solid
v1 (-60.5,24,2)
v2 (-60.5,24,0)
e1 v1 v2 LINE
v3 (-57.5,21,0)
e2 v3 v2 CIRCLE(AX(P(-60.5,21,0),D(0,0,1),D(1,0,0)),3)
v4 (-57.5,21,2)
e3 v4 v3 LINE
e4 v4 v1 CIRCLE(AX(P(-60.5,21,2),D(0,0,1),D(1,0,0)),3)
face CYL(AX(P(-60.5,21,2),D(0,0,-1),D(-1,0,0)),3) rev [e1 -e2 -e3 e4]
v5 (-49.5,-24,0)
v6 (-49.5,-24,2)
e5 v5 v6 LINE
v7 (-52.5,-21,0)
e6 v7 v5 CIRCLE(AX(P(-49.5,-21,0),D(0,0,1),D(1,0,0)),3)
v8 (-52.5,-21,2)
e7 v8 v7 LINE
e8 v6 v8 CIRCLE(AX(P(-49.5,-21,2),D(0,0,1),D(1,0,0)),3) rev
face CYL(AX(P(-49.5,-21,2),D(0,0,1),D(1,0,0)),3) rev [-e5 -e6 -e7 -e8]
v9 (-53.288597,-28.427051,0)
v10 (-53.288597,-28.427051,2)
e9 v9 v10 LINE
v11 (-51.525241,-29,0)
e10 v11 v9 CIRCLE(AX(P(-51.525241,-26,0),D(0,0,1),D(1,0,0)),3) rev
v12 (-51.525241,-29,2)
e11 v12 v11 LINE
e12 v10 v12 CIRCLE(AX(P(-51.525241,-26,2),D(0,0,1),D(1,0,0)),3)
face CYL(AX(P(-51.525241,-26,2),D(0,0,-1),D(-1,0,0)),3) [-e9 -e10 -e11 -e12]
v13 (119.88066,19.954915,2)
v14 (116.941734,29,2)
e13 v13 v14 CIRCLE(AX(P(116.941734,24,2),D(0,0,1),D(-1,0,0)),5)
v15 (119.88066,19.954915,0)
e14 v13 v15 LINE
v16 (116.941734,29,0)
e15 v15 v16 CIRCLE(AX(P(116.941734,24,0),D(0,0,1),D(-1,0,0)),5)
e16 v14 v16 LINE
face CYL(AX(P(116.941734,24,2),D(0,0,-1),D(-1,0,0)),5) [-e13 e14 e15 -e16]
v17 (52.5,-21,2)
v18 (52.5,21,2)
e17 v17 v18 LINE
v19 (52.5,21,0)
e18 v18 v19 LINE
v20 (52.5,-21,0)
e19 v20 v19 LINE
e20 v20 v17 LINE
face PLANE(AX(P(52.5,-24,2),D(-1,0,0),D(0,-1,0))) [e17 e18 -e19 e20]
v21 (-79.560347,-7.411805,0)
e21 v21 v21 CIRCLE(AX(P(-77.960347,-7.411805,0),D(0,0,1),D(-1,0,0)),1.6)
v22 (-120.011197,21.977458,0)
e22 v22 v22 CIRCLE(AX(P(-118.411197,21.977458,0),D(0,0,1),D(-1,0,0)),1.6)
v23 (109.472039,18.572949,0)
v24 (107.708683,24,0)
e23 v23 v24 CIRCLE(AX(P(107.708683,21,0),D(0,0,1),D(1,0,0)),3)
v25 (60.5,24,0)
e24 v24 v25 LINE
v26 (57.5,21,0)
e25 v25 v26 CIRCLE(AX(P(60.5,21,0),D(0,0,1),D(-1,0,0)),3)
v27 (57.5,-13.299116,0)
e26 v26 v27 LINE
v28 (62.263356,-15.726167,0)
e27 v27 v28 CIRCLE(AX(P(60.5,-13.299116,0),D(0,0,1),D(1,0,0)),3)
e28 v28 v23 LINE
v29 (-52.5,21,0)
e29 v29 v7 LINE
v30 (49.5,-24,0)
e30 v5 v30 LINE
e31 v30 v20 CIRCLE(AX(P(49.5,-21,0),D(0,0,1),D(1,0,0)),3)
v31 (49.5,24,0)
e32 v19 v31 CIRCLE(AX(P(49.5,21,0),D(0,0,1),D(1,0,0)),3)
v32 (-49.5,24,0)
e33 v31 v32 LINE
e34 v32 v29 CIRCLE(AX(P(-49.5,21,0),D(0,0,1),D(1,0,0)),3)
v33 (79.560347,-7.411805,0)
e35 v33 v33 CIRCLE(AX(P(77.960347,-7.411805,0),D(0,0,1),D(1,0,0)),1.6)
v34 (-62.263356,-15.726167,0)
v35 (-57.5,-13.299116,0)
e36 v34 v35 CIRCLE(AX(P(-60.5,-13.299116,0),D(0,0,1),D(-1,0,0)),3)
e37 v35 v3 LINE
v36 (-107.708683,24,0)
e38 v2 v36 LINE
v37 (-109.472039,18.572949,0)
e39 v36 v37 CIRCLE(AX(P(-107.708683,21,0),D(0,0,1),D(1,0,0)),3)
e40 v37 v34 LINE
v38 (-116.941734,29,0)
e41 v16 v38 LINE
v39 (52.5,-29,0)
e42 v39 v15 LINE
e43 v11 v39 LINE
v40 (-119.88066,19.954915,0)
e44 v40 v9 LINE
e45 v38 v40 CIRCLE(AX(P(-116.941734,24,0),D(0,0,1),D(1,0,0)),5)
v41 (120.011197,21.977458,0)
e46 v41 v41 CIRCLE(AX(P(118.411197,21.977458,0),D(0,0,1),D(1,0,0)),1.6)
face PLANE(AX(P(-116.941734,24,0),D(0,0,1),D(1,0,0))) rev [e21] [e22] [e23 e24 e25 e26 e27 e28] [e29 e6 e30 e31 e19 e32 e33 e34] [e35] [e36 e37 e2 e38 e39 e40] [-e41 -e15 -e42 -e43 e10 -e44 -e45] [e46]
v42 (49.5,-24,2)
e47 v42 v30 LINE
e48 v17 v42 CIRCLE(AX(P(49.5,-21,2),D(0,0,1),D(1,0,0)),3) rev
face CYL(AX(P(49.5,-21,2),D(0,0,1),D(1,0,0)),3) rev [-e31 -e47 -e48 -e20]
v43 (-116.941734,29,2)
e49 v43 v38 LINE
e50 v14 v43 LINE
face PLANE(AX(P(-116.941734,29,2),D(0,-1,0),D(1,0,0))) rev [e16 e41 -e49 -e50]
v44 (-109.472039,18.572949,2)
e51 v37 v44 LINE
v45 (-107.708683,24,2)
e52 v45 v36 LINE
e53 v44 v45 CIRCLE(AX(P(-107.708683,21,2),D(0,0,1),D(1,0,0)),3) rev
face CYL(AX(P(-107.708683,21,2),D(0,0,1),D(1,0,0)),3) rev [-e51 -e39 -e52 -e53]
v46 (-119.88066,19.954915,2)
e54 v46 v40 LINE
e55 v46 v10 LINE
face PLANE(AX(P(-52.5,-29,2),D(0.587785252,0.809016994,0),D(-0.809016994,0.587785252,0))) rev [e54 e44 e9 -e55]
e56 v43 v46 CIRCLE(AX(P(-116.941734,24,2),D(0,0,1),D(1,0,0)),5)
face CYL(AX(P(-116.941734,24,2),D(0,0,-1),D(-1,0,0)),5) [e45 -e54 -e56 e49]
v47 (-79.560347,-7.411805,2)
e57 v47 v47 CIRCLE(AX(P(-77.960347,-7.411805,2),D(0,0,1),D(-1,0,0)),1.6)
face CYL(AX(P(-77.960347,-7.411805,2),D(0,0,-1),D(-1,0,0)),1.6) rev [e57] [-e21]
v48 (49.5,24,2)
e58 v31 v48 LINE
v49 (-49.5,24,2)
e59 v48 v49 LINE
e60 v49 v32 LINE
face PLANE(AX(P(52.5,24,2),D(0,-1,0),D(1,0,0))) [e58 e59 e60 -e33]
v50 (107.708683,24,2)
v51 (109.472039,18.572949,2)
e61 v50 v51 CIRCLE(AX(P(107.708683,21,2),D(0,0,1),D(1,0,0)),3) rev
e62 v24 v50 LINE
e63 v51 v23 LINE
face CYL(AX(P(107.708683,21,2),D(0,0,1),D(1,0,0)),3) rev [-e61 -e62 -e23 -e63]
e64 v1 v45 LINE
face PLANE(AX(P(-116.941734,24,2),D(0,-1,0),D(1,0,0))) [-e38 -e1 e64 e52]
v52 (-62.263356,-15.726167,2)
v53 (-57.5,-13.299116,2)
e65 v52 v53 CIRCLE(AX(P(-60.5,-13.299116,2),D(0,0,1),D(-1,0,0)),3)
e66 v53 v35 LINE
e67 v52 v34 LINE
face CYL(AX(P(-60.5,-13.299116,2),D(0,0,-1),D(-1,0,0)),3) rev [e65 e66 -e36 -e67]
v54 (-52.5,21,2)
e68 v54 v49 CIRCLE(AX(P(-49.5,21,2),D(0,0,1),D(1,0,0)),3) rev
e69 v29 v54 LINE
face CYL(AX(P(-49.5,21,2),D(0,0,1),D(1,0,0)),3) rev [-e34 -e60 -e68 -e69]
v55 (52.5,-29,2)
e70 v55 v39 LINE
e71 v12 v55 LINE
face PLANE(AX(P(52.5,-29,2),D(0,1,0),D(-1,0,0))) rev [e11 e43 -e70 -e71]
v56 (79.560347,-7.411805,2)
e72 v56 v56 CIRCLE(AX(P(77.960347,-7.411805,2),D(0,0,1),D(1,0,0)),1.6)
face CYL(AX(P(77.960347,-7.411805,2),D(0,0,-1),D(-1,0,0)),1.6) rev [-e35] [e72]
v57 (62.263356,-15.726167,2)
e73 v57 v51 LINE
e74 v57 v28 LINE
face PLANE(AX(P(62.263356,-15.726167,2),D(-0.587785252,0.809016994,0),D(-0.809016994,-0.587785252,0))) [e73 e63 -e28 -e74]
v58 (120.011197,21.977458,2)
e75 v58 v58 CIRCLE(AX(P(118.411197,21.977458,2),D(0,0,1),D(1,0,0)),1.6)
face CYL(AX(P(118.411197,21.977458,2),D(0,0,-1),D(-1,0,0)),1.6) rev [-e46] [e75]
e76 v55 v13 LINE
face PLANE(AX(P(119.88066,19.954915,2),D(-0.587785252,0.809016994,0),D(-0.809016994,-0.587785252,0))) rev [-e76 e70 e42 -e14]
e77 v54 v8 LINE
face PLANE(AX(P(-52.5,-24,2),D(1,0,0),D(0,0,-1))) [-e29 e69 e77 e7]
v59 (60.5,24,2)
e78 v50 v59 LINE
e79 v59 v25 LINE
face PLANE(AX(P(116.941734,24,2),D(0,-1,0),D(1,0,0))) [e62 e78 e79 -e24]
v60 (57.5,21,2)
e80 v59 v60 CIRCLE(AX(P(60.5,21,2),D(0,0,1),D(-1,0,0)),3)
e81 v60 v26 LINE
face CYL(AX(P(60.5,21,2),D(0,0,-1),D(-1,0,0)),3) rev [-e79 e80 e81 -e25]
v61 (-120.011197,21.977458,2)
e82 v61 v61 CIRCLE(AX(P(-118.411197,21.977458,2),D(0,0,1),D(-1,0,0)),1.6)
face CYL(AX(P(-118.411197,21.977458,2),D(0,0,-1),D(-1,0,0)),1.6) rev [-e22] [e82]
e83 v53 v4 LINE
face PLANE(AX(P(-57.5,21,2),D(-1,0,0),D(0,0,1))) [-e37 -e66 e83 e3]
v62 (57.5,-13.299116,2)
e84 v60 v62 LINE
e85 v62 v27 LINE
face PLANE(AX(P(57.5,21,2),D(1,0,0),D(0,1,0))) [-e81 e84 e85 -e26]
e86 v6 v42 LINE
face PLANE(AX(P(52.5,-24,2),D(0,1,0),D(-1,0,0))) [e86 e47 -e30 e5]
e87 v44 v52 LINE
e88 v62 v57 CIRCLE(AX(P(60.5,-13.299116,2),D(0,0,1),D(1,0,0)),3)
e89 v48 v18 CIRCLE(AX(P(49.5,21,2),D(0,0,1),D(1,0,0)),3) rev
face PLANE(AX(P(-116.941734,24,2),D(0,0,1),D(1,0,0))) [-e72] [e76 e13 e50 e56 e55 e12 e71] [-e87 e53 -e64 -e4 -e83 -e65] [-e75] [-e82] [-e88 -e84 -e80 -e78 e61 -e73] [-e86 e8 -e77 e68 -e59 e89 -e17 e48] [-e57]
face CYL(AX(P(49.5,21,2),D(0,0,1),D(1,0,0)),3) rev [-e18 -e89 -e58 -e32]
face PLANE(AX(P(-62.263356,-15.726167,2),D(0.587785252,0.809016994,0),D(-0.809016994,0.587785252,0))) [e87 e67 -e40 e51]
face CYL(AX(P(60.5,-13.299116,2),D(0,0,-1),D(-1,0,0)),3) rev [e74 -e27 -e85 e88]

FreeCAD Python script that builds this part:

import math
import FreeCAD as App
import Part
import Sketcher
Q = App.Units.Quantity


def edges_at(feature, points):
    """Names of the edges that pass closest to the given points."""
    edges = feature.Shape.Edges
    near = lambda p: min(range(len(edges)), key=lambda i: edges[i].distToShape(Part.Vertex(*p))[0])
    return sorted({f"Edge{near(p) + 1}" for p in points})


def add_polygon(sketch, points):
    """Adds a closed chain of lines whose ends are joined by coincident constraints."""
    first, n = sketch.GeometryCount, len(points)
    for a, b in zip(points, points[1:] + points[:1]):
        sketch.addGeometry(Part.LineSegment(App.Vector(*a, 0), App.Vector(*b, 0)), False)
    for i in range(n):
        sketch.addConstraint(Sketcher.Constraint("Coincident", first + i, 2, first + (i + 1) % n, 1))

doc = App.newDocument("Part")
params = doc.addObject("Spreadsheet::Sheet", "Params")
for row, (alias, value) in enumerate([
    ("sketch1_radius", "5 mm"),
    ("sketch1_radius2", "3 mm"),
    ("sketch1_diameter", "3.2 mm"),
    ("sketch1_width", "105 mm"),
    ("sketch1_height", "48 mm"),
    ("pad1_length", "2 mm"),
    ("fillet_radius", "3 mm"),
], start=1):
    params.set(f"A{row}", alias)
    params.set(f"B{row}", "=" + value)
    params.setAlias(f"B{row}", alias)

body = doc.addObject("PartDesign::Body", "Body")

sketch1 = doc.addObject("Sketcher::SketchObject", "Sketch")
body.addObject(sketch1)
sketch1.AttachmentSupport = (doc.XY_Plane, [""])
sketch1.MapMode = "FlatFace"
sketch1.addGeometry(Part.LineSegment(App.Vector(116.941734, 29, 0), App.Vector(-116.941734, 29, 0)), False)
sketch1.addGeometry(Part.ArcOfCircle(Part.Circle(App.Vector(-116.941734, 24, 0), App.Vector(0, 0, 1), 5), math.radians(90), math.radians(234)), False)
sketch1.addGeometry(Part.LineSegment(App.Vector(-119.88066, 19.954915, 0), App.Vector(-52.5, -29, 0)), False)
sketch1.addGeometry(Part.LineSegment(App.Vector(-52.5, -29, 0), App.Vector(52.5, -29, 0)), False)
sketch1.addGeometry(Part.LineSegment(App.Vector(52.5, -29, 0), App.Vector(119.88066, 19.954915, 0)), False)
sketch1.addGeometry(Part.ArcOfCircle(Part.Circle(App.Vector(116.941734, 24, 0), App.Vector(0, 0, 1), 5), math.radians(-54), math.radians(90)), False)
sketch1.addGeometry(Part.Circle(App.Vector(77.960347, -7.411805, 0), App.Vector(0, 0, 1), 1.6), False)
sketch1.addGeometry(Part.Circle(App.Vector(-77.960347, -7.411805, 0), App.Vector(0, 0, 1), 1.6), False)
sketch1.addGeometry(Part.ArcOfCircle(Part.Circle(App.Vector(60.5, -13.299116, 0), App.Vector(0, 0, 1), 3), math.radians(180), math.radians(306)), False)
sketch1.addGeometry(Part.LineSegment(App.Vector(57.5, -13.299116, 0), App.Vector(57.5, 21, 0)), False)
sketch1.addGeometry(Part.ArcOfCircle(Part.Circle(App.Vector(60.5, 21, 0), App.Vector(0, 0, 1), 3), math.radians(90), math.radians(180)), False)
sketch1.addGeometry(Part.LineSegment(App.Vector(60.5, 24, 0), App.Vector(116.941734, 24, 0)), False)
sketch1.addGeometry(Part.LineSegment(App.Vector(116.941734, 24, 0), App.Vector(62.263356, -15.726167, 0)), False)
sketch1.addGeometry(Part.Circle(App.Vector(118.411197, 21.977458, 0), App.Vector(0, 0, 1), 1.6), False)
add_polygon(sketch1, [(-52.5, -24), (-52.5, 24), (52.5, 24), (52.5, -24)])
sketch1.addGeometry(Part.LineSegment(App.Vector(-57.5, 21, 0), App.Vector(-57.5, -13.299116, 0)), False)
sketch1.addGeometry(Part.ArcOfCircle(Part.Circle(App.Vector(-60.5, -13.299116, 0), App.Vector(0, 0, 1), 3), math.radians(-126), math.radians(0)), False)
sketch1.addGeometry(Part.LineSegment(App.Vector(-62.263356, -15.726167, 0), App.Vector(-116.941734, 24, 0)), False)
sketch1.addGeometry(Part.LineSegment(App.Vector(-116.941734, 24, 0), App.Vector(-60.5, 24, 0)), False)
sketch1.addGeometry(Part.ArcOfCircle(Part.Circle(App.Vector(-60.5, 21, 0), App.Vector(0, 0, 1), 3), math.radians(0), math.radians(90)), False)
sketch1.addGeometry(Part.Circle(App.Vector(-118.411197, 21.977458, 0), App.Vector(0, 0, 1), 1.6), False)
sketch1.addConstraint([
    Sketcher.Constraint("Tangent", 0, 2, 1, 1),
    Sketcher.Constraint("Tangent", 1, 2, 2, 1),
    Sketcher.Constraint("Coincident", 2, 2, 3, 1),
    Sketcher.Constraint("Coincident", 3, 2, 4, 1),
    Sketcher.Constraint("Tangent", 4, 2, 5, 1),
    Sketcher.Constraint("Tangent", 5, 2, 0, 1),
    Sketcher.Constraint("Tangent", 8, 1, 9, 1),
    Sketcher.Constraint("Tangent", 9, 2, 10, 2),
    Sketcher.Constraint("Tangent", 10, 1, 11, 1),
    Sketcher.Constraint("Coincident", 11, 2, 12, 1),
    Sketcher.Constraint("Tangent", 12, 2, 8, 2),
    Sketcher.Constraint("Tangent", 18, 2, 19, 2),
    Sketcher.Constraint("Tangent", 19, 1, 20, 1),
    Sketcher.Constraint("Coincident", 20, 2, 21, 1),
    Sketcher.Constraint("Tangent", 21, 2, 22, 2),
    Sketcher.Constraint("Tangent", 22, 1, 18, 1),
    Sketcher.Constraint("Horizontal", 0),
    Sketcher.Constraint("Horizontal", 3),
    Sketcher.Constraint("Vertical", 9),
    Sketcher.Constraint("Horizontal", 11),
    Sketcher.Constraint("Vertical", 14),
    Sketcher.Constraint("Horizontal", 15),
    Sketcher.Constraint("Vertical", 16),
    Sketcher.Constraint("Horizontal", 17),
    Sketcher.Constraint("Vertical", 18),
    Sketcher.Constraint("Horizontal", 21),
    Sketcher.Constraint("Coincident", 11, 2, 5, 3),
    Sketcher.Constraint("Coincident", 20, 2, 1, 3),
    Sketcher.Constraint("Equal", 1, 5),
    Sketcher.Constraint("Equal", 6, 7),
    Sketcher.Constraint("Equal", 8, 10),
    Sketcher.Constraint("Equal", 7, 13),
    Sketcher.Constraint("Equal", 10, 19),
    Sketcher.Constraint("Equal", 19, 22),
    Sketcher.Constraint("Equal", 13, 23),
    Sketcher.Constraint("Symmetric", 14, 2, 16, 2, -1, 1),
    Sketcher.Constraint("Symmetric", 6, 3, 7, 3, -2),
    Sketcher.Constraint("Symmetric", 8, 3, 19, 3, -2),
    Sketcher.Constraint("Symmetric", 13, 3, 23, 3, -2),
    Sketcher.Constraint("Symmetric", 1, 2, 4, 2, -2),
    Sketcher.Constraint("Parallel", 4, 12),
    Sketcher.Constraint("Horizontal", 11, 2, 14, 2),
    Sketcher.Constraint("Vertical", 2, 2, 14, 2),
    Sketcher.Constraint("Radius", 1, 5.0),
    Sketcher.Constraint("Radius", 8, 3.0),
    Sketcher.Constraint("Diameter", 6, 3.2),
    Sketcher.Constraint("DistanceX", 3, 1, 3, 2, 105.0),
    Sketcher.Constraint("DistanceY", 14, 1, 14, 2, 48.0),
    Sketcher.Constraint("Angle", 2, Q("-36 deg")),
    Sketcher.Constraint("DistanceY", 2, 2, -1, 1, 29.0),
    Sketcher.Constraint("DistanceX", 19, 3, 8, 3, 121.0),
    Sketcher.Constraint("DistanceX", 1, 3, 6, 3, 194.902081),
    Sketcher.Constraint("DistanceY", 8, 3, 6, 3, 5.887311),
    Sketcher.Constraint("DistanceX", 6, 3, 13, 3, 40.45085),
    Sketcher.Constraint("DistanceY", -1, 1, 13, 3, 21.977458),
])
sketch1.setExpression("Constraints[47]", "Params.sketch1_radius")
sketch1.setExpression("Constraints[48]", "Params.sketch1_radius2")
sketch1.setExpression("Constraints[49]", "Params.sketch1_diameter")
sketch1.setExpression("Constraints[50]", "Params.sketch1_width")
sketch1.setExpression("Constraints[51]", "Params.sketch1_height")
pad1 = doc.addObject("PartDesign::Pad", "Pad")
body.addObject(pad1)
pad1.Profile = sketch1
pad1.setExpression("Length", "Params.pad1_length")
doc.recompute()

fillet = doc.addObject("PartDesign::Fillet", "Fillet")
body.addObject(fillet)
fillet.Base = (pad1, edges_at(pad1, [
    (-52.5, -29, 1),
    (-52.5, 24, 1),
    (-52.5, -24, 1),
    (52.5, -24, 1),
    (52.5, 24, 1),
    (116.942, 24, 1),
    (-116.942, 24, 1),
]))
fillet.setExpression("Radius", "Params.fillet_radius")

doc.recompute()
